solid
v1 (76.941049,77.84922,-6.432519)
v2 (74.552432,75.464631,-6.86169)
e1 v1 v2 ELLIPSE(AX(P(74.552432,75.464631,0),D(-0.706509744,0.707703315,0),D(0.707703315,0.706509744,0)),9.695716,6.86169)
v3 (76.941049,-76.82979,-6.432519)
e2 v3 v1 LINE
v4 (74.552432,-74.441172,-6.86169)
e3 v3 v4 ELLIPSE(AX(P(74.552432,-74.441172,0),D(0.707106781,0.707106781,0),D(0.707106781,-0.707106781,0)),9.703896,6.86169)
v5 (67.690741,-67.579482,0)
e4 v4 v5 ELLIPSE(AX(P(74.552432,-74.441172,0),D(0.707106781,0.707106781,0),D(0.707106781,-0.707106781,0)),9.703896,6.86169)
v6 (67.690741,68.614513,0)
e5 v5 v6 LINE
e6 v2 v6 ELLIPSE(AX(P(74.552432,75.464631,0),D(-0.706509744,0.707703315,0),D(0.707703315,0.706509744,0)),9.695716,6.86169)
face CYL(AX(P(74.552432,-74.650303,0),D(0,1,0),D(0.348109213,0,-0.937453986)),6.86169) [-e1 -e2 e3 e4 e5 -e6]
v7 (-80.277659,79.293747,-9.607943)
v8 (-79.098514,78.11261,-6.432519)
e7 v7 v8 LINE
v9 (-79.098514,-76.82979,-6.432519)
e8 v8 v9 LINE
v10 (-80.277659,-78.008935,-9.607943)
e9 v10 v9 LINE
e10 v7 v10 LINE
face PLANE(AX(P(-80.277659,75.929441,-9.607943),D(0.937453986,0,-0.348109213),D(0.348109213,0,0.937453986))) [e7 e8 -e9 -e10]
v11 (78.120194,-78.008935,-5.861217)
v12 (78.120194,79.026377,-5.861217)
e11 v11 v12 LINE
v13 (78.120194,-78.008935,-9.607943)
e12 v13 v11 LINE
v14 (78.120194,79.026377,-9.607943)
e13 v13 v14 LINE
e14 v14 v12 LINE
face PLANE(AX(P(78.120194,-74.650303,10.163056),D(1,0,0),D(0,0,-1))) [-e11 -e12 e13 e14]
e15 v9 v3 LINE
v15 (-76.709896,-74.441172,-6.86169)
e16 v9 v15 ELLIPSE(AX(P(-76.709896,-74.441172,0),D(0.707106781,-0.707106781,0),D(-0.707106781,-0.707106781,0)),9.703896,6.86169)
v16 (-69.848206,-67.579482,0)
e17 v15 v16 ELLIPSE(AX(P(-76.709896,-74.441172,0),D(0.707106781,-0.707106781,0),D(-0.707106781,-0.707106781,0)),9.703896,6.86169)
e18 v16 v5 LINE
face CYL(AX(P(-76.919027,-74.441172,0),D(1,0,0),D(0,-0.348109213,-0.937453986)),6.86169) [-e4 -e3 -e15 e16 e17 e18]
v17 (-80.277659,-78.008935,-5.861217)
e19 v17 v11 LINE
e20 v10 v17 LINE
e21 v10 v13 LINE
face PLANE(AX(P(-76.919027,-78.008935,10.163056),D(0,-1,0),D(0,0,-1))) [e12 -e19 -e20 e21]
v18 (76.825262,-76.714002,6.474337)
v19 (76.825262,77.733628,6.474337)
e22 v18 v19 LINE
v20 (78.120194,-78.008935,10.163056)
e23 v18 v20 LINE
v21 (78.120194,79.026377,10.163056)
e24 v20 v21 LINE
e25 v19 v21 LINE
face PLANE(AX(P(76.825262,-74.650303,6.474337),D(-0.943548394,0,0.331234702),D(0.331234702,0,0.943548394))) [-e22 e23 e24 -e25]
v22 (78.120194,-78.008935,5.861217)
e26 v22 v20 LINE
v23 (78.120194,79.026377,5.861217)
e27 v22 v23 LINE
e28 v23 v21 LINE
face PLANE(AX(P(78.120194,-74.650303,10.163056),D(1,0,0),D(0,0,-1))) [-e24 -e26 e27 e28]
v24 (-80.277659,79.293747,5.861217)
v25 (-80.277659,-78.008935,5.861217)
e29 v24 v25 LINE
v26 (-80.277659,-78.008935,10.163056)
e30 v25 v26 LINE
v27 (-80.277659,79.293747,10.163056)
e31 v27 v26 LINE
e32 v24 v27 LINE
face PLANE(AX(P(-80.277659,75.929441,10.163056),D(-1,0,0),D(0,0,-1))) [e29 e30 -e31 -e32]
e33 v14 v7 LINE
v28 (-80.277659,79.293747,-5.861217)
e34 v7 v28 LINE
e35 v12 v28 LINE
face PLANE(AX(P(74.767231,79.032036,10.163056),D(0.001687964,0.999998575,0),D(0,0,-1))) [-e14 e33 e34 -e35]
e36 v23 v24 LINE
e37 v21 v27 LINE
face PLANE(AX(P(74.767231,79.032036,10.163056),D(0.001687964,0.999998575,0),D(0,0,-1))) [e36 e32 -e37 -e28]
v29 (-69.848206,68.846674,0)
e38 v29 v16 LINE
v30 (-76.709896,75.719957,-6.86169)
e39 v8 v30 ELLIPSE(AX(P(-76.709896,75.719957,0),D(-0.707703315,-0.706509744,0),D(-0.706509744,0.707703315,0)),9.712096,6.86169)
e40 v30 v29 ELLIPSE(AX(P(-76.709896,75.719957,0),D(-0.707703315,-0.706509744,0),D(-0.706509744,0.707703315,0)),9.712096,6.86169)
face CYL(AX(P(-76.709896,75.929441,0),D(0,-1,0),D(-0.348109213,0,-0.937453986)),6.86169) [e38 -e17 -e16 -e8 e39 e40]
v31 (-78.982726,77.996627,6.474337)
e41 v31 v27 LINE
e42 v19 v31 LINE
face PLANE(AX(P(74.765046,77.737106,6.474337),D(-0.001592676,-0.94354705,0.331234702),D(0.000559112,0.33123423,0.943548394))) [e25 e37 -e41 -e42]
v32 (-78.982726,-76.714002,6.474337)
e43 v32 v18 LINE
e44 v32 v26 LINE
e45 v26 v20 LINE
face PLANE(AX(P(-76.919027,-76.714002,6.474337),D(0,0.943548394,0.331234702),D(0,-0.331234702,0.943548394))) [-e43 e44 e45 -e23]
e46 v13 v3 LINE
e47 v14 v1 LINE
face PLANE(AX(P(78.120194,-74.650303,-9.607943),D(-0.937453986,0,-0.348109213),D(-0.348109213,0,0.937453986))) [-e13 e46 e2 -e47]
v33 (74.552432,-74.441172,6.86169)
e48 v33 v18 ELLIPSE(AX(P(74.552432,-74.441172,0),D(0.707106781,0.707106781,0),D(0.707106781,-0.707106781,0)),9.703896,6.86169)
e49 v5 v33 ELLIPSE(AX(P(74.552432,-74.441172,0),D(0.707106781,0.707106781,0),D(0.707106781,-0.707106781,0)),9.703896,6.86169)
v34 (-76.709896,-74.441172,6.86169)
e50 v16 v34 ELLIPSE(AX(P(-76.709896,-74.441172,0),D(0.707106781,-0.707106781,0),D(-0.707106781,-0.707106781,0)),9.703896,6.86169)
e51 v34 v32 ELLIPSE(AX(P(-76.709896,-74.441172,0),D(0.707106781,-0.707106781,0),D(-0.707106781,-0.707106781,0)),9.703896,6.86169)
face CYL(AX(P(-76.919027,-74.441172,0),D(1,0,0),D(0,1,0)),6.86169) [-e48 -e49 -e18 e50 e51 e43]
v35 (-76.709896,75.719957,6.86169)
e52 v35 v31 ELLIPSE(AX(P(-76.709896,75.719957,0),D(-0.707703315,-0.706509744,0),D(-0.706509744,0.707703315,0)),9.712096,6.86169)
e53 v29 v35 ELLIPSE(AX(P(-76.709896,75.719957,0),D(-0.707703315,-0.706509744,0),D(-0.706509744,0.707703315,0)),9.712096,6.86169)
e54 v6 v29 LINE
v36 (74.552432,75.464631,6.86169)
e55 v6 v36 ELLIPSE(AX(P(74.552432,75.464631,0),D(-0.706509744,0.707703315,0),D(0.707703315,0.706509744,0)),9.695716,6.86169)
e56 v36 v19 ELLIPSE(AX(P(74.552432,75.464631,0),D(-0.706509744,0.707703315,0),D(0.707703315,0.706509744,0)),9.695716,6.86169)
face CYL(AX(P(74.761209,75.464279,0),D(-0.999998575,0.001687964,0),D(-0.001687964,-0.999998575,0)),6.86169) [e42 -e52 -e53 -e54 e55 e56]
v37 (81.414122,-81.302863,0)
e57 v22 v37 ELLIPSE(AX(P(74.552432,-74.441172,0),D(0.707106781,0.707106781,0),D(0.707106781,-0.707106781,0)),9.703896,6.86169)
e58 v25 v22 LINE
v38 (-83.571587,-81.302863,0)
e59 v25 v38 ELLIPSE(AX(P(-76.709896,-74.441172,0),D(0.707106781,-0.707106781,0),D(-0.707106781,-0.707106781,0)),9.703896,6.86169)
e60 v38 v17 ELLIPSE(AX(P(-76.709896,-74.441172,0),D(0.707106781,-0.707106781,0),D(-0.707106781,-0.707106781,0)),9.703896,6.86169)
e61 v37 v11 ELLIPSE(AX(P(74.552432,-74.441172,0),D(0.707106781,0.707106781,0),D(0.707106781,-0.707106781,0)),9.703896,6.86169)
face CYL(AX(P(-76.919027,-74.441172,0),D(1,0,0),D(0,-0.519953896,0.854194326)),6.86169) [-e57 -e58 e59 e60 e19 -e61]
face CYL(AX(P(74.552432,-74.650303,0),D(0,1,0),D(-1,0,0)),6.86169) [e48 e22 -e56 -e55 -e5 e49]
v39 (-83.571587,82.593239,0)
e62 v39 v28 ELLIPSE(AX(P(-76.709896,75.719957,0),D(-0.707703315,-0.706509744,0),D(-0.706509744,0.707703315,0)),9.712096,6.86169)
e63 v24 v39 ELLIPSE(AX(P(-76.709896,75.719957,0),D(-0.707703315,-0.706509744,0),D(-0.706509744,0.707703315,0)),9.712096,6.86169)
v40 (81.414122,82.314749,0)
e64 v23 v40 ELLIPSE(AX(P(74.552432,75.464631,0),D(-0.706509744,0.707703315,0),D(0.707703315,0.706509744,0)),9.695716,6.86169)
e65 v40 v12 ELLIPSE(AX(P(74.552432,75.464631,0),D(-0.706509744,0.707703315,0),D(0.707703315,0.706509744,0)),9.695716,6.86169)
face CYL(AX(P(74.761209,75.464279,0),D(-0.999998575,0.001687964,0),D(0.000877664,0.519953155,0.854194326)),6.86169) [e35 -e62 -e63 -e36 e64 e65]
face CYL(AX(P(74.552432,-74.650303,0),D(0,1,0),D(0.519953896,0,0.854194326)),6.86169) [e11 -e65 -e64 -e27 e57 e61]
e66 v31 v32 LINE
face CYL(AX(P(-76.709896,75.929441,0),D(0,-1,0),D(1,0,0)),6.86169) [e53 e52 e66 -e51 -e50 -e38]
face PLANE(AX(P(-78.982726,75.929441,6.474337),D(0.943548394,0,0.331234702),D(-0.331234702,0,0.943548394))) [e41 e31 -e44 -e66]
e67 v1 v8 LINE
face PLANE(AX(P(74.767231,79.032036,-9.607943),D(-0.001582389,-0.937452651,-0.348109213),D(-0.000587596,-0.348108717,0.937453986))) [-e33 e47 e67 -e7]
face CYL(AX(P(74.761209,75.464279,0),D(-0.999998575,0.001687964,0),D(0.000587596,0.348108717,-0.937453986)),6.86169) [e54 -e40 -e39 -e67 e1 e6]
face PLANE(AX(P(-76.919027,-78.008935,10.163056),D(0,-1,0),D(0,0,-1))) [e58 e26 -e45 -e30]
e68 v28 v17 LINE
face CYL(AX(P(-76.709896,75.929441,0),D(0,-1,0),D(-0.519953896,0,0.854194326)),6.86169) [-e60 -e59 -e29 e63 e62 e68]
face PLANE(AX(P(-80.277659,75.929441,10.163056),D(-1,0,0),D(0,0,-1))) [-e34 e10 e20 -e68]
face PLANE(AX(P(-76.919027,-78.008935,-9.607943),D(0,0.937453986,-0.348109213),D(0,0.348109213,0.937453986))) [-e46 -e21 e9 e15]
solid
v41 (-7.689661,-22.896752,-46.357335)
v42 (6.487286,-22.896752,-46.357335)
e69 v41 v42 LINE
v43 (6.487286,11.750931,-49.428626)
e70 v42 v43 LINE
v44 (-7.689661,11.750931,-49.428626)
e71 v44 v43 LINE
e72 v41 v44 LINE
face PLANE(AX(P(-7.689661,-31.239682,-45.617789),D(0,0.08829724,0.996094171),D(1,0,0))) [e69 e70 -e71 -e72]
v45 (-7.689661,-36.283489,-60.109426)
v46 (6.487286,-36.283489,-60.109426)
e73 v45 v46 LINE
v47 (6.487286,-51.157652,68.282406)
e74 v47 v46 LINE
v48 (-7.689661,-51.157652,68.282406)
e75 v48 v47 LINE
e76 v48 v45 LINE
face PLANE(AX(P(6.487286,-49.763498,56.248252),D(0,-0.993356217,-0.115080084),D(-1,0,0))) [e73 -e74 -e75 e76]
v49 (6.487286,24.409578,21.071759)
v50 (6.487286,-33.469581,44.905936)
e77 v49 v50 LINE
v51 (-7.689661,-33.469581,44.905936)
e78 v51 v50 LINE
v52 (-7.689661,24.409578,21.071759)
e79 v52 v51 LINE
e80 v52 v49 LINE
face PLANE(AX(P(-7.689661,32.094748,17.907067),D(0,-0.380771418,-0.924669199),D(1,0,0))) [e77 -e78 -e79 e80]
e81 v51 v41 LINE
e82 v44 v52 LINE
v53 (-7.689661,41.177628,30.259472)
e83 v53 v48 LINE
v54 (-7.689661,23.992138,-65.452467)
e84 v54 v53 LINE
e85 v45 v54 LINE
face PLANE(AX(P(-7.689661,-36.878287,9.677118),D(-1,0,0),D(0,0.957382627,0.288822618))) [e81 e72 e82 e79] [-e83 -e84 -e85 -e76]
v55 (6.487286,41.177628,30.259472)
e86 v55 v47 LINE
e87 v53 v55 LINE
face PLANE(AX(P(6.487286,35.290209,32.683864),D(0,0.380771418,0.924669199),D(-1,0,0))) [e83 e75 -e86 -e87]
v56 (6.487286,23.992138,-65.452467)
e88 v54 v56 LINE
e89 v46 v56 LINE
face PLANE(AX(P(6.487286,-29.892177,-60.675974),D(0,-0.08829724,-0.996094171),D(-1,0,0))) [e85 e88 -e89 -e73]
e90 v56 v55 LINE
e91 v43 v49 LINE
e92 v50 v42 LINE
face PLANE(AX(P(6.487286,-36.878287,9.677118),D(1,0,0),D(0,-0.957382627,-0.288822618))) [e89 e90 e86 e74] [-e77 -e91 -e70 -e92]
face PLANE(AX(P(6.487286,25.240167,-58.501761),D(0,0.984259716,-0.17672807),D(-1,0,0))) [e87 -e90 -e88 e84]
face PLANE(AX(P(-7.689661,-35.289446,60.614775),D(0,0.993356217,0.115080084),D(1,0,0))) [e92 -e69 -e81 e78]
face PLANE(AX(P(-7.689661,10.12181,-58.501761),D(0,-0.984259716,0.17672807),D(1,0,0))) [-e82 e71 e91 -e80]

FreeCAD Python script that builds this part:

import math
import FreeCAD as App
import Part
import Sketcher

V = App.Vector
Q = App.Units.Quantity


def add_polygon(sketch, points):
    """Adds a closed chain of lines whose ends are joined by coincident constraints."""
    first, n = sketch.GeometryCount, len(points)
    for a, b in zip(points, points[1:] + points[:1]):
        sketch.addGeometry(Part.LineSegment(App.Vector(*a, 0), App.Vector(*b, 0)), False)
    for i in range(n):
        sketch.addConstraint(Sketcher.Constraint("Coincident", first + i, 2, first + (i + 1) % n, 1))

doc = App.newDocument("Part")
body = doc.addObject("PartDesign::Body", "Body")

sketch1 = body.newObject("Sketcher::SketchObject", "Sketch")
sketch1.AttachmentSupport = (doc.getObject("XZ_Plane"), [""])
sketch1.MapMode = "FlatFace"
sketch1.addGeometry([
    Part.ArcOfCircle(Part.Circle(V(-76.709896, 0, 0), V(0, 0, 1), 6.86169), math.radians(-110.37171), math.radians(0)),
    Part.ArcOfCircle(Part.Circle(V(-76.709896, 0, 0), V(0, 0, 1), 6.86169), math.radians(0), math.radians(109.343734)),
    Part.LineSegment(V(-78.982726, 6.474337, 0), V(-80.277659, 10.163056, 0)),
    Part.LineSegment(V(-80.277659, 10.163056, 0), V(-80.277659, 5.861217, 0)),
    Part.ArcOfCircle(Part.Circle(V(-76.709896, 0, 0), V(0, 0, 1), 6.86169), math.radians(121.329159), math.radians(238.670841)),
    Part.LineSegment(V(-80.277659, -5.861217, 0), V(-80.277659, -9.607943, 0)),
    Part.LineSegment(V(-80.277659, -9.607943, 0), V(-79.098514, -6.432519, 0)),
], False)
sketch1.addConstraint([
    Sketcher.Constraint("Tangent", 0, 2, 1, 1),
    Sketcher.Constraint("Coincident", 1, 2, 2, 1),
    Sketcher.Constraint("Coincident", 2, 2, 3, 1),
    Sketcher.Constraint("Coincident", 3, 2, 4, 1),
    Sketcher.Constraint("Coincident", 4, 2, 5, 1),
    Sketcher.Constraint("Coincident", 5, 2, 6, 1),
    Sketcher.Constraint("Coincident", 6, 2, 0, 1),
    Sketcher.Constraint("Vertical", 3),
    Sketcher.Constraint("Vertical", 5),
    Sketcher.Constraint("Coincident", 4, 3, 0, 3),
    Sketcher.Constraint("Equal", 0, 1),
    Sketcher.Constraint("Equal", 1, 4),
    Sketcher.Constraint("Symmetric", 3, 2, 4, 2, -1),
    Sketcher.Constraint("PointOnObject", 0, 2, -1),
    Sketcher.Constraint("Radius", 0, Q("6.86169 mm")),
    Sketcher.Constraint("DistanceY", 3, 2, 3, 1, Q("4.301839 mm")),
    Sketcher.Constraint("Distance", 2, Q("3.909411 mm")),
    Sketcher.Constraint("DistanceY", 5, 2, 5, 1, Q("3.746726 mm")),
    Sketcher.Constraint("DistanceX", 2, 2, -1, 1, Q("80.277659 mm")),
    Sketcher.Constraint("DistanceY", 6, 2, -1, 1, Q("6.432519 mm")),
    Sketcher.Constraint("DistanceX", 1, 2, 0, 3, Q("2.27283 mm")),
])

sketch2 = body.newObject("Sketcher::SketchObject", "Sketch001")
sketch2.AttachmentSupport = (doc.getObject("XY_Plane"), [""])
sketch2.MapMode = "FlatFace"
add_polygon(sketch2, [(-76.919027, 75.929441), (-76.919027, -74.650303), (74.761562, -74.650303), (74.761562, 75.673409)])
sketch2.addConstraint([
    Sketcher.Constraint("Vertical", 0),
    Sketcher.Constraint("Horizontal", 1),
    Sketcher.Constraint("Vertical", 2),
    Sketcher.Constraint("DistanceX", 1, 1, 1, 2, Q("151.680589 mm")),
    Sketcher.Constraint("DistanceY", 2, 1, 2, 2, Q("150.323711 mm")),
    Sketcher.Constraint("DistanceY", 0, 2, 0, 1, Q("150.579743 mm")),
    Sketcher.Constraint("DistanceY", -1, 1, 2, 2, Q("75.673409 mm")),
    Sketcher.Constraint("DistanceX", 0, 2, -1, 1, Q("76.919027 mm")),
])
doc.recompute()

additivepipe = body.newObject("PartDesign::AdditivePipe", "AdditivePipe")
additivepipe.Profile = sketch1
additivepipe.Spine = (sketch2, ["Edge1", "Edge2", "Edge3", "Edge4"])
additivepipe.Transition = "Right corner"
body2 = doc.addObject("PartDesign::Body", "Body001")

sketch3 = body2.newObject("Sketcher::SketchObject", "Sketch002")
sketch3.AttachmentSupport = (doc.getObject("XY_Plane001"), [""])
sketch3.MapMode = "FlatFace"
add_polygon(sketch3, [(-7.689661, 35.74441), (-7.689661, 20.626053), (6.487286, 20.626053), (6.487286, 35.74441)])
sketch3.addConstraint([
    Sketcher.Constraint("Vertical", 0),
    Sketcher.Constraint("Horizontal", 1),
    Sketcher.Constraint("Vertical", 2),
    Sketcher.Constraint("Horizontal", 3),
    Sketcher.Constraint("DistanceX", 1, 1, 1, 2, Q("14.176948 mm")),
    Sketcher.Constraint("DistanceY", 0, 2, 0, 1, Q("15.118357 mm")),
    Sketcher.Constraint("DistanceX", 0, 2, -1, 1, Q("7.689661 mm")),
    Sketcher.Constraint("DistanceY", -1, 1, 2, 2, Q("35.74441 mm")),
])

sketch4 = body2.newObject("Sketcher::SketchObject", "Sketch003")
sketch4.AttachmentSupport = (doc.getObject("YZ_Plane001"), [""])
sketch4.MapMode = "FlatFace"
add_polygon(sketch4, [(-43.485049, 58.14233), (-30.476687, -54.144144), (18.682236, -58.501761), (33.904105, 26.274092)])
sketch4.addConstraint([
    Sketcher.Constraint("Distance", 0, Q("113.037471 mm")),
    Sketcher.Constraint("Distance", 2, Q("86.13159 mm")),
    Sketcher.Constraint("Distance", 3, Q("83.693882 mm")),
    Sketcher.Constraint("DistanceY", 1, 2, -1, 1, Q("58.501761 mm")),
    Sketcher.Constraint("DistanceX", 3, 2, -1, 1, Q("43.485049 mm")),
    Sketcher.Constraint("DistanceY", -1, 1, 3, 2, Q("58.14233 mm")),
    Sketcher.Constraint("DistanceX", 1, 2, 2, 2, Q("15.22187 mm")),
    Sketcher.Constraint("DistanceX", 3, 2, 0, 2, Q("13.008362 mm")),
])
doc.recompute()

additivepipe2 = body2.newObject("PartDesign::AdditivePipe", "AdditivePipe001")
additivepipe2.Profile = sketch3
additivepipe2.Spine = (sketch4, ["Edge1", "Edge2", "Edge3", "Edge4"])
additivepipe2.Transition = "Right corner"

doc.recompute()
